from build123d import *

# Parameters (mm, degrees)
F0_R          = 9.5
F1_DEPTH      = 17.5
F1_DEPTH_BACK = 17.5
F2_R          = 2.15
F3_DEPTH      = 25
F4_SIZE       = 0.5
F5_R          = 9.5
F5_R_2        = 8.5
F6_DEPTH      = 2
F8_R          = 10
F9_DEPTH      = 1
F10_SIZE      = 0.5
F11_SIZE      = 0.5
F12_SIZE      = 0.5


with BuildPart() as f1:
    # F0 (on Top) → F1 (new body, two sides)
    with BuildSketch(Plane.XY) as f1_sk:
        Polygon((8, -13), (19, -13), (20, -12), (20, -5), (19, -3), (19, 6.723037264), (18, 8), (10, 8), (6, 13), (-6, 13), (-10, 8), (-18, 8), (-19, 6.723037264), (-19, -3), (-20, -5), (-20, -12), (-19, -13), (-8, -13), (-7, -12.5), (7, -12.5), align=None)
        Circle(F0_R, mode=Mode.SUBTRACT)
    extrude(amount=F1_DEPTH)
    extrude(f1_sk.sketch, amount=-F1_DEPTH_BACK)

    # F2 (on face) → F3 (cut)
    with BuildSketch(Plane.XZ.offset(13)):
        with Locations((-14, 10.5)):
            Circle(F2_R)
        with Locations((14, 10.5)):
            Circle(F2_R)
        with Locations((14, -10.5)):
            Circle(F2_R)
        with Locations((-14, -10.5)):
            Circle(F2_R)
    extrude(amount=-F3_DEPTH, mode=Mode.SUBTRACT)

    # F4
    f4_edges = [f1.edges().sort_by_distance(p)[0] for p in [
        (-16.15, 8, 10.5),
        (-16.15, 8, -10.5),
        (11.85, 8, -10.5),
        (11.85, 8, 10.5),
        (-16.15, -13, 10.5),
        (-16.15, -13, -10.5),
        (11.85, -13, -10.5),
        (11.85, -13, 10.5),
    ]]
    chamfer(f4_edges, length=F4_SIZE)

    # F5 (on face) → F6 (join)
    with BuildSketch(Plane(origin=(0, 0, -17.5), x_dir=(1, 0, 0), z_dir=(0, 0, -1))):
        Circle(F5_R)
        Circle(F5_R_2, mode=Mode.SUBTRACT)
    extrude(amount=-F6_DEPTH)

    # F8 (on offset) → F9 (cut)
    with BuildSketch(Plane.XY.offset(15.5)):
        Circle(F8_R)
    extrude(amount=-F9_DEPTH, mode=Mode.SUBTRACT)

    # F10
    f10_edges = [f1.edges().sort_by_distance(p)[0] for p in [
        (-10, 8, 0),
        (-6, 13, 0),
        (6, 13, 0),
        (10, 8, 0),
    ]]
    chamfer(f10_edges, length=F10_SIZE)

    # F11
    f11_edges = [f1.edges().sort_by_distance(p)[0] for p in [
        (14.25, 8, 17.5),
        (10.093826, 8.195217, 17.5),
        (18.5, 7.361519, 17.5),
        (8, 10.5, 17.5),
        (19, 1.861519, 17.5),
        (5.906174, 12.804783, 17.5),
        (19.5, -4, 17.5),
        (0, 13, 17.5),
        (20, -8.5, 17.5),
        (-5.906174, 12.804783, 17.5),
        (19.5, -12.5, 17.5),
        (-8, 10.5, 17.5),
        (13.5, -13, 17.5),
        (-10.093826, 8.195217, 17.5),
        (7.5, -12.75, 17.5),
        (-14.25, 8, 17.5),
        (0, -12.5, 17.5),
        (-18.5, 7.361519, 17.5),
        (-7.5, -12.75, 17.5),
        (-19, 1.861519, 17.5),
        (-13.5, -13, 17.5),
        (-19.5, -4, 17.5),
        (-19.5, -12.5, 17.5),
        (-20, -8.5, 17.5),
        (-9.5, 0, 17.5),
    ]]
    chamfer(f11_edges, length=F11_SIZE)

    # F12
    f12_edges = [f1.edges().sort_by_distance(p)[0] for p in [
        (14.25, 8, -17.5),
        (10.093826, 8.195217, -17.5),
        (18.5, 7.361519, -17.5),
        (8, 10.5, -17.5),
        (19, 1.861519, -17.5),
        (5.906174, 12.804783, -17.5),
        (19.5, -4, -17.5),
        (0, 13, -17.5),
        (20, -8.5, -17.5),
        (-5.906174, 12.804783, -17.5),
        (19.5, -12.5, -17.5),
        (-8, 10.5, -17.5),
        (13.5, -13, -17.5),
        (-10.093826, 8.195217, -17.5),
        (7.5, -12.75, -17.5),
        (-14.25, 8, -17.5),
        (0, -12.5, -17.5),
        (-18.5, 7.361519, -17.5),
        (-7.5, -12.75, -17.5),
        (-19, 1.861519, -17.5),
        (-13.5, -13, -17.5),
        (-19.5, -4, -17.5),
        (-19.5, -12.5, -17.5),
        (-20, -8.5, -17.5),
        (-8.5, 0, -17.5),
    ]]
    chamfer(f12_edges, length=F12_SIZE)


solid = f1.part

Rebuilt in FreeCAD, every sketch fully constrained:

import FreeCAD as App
import Part
import Sketcher
Q = App.Units.Quantity


def edges_at(feature, points):
    """Names of the edges that pass closest to the given points."""
    edges = feature.Shape.Edges
    near = lambda p: min(range(len(edges)), key=lambda i: edges[i].distToShape(Part.Vertex(*p))[0])
    return sorted({f"Edge{near(p) + 1}" for p in points})


def add_polygon(sketch, points):
    """Adds a closed chain of lines whose ends are joined by coincident constraints."""
    first, n = sketch.GeometryCount, len(points)
    for a, b in zip(points, points[1:] + points[:1]):
        sketch.addGeometry(Part.LineSegment(App.Vector(*a, 0), App.Vector(*b, 0)), False)
    for i in range(n):
        sketch.addConstraint(Sketcher.Constraint("Coincident", first + i, 2, first + (i + 1) % n, 1))

doc = App.newDocument("Part")
params = doc.addObject("Spreadsheet::Sheet", "Params")
for row, (alias, value) in enumerate([
    ("sketch1_diameter", "19 mm"),
    ("sketch1_width", "11 mm"),
    ("sketch1_width2", "8 mm"),
    ("sketch1_width3", "12 mm"),
    ("sketch1_width4", "14 mm"),
    ("pad1_length", "17.5 mm"),
    ("pad1_length2", "17.5 mm"),
    ("sketch2_diameter", "4.3 mm"),
    ("pocket1_length", "25 mm"),
    ("chamfer_size", "0.5 mm"),
    ("sketch3_diameter", "19 mm"),
    ("sketch3_diameter2", "17 mm"),
    ("pad2_length", "2 mm"),
    ("sketch4_diameter", "20 mm"),
    ("pocket2_length", "1 mm"),
    ("chamfer2_size", "0.5 mm"),
    ("chamfer3_size", "0.5 mm"),
    ("chamfer4_size", "0.5 mm"),
], start=1):
    params.set(f"A{row}", alias)
    params.set(f"B{row}", "=" + value)
    params.setAlias(f"B{row}", alias)

body = doc.addObject("PartDesign::Body", "Body")

# Sketch on XY plane
sketch1 = body.newObject("Sketcher::SketchObject", "Sketch")
sketch1.AttachmentSupport = (doc.getObject("XY_Plane"), [""])
sketch1.MapMode = "FlatFace"
add_polygon(sketch1, [(8, -13), (19, -13), (20, -12), (20, -5), (19, -3), (19, 6.7), (18, 8), (10, 8), (6, 13), (-6, 13), (-10, 8), (-18, 8), (-19, 6.7), (-19, -3), (-20, -5), (-20, -12), (-19, -13), (-8, -13), (-7, -12.5), (7, -12.5)])  # lines 0-19
sketch1.addGeometry(Part.Circle(App.Vector(0, 0, 0), App.Vector(0, 0, 1), 9.5), False)  # 20
sketch1.addConstraint([
    Sketcher.Constraint("Horizontal", 0),
    Sketcher.Constraint("Vertical", 2),
    Sketcher.Constraint("Vertical", 4),
    Sketcher.Constraint("Horizontal", 6),
    Sketcher.Constraint("Horizontal", 8),
    Sketcher.Constraint("Horizontal", 10),
    Sketcher.Constraint("Vertical", 12),
    Sketcher.Constraint("Vertical", 14),
    Sketcher.Constraint("Horizontal", 16),
    Sketcher.Constraint("Horizontal", 18),
    Sketcher.Constraint("Coincident", 20, 3, -1, 1),
    Sketcher.Constraint("Symmetric", 6, 2, 9, 2, -2),
    Sketcher.Constraint("Symmetric", 4, 2, 11, 2, -2),
    Sketcher.Constraint("Symmetric", 2, 2, 13, 2, -2),
    Sketcher.Constraint("Symmetric", 0, 2, 15, 2, -2),
    Sketcher.Constraint("Perpendicular", 1, 15),
    Sketcher.Constraint("Perpendicular", 3, 17),
    Sketcher.Constraint("Perpendicular", 13, 19),
    Sketcher.Constraint("Horizontal", 3, 2, 12, 2),
    Sketcher.Constraint("Horizontal", 1, 2, 14, 2),
    Sketcher.Constraint("Vertical", 0, 2, 3, 2),
    Sketcher.Constraint("Equal", 6, 10),
    Sketcher.Constraint("Equal", 0, 16),
    Sketcher.Constraint("Equal", 7, 9),
    Sketcher.Constraint("Diameter", 20, Q("19 mm")),
    Sketcher.Constraint("DistanceX", 0, 1, 0, 2, Q("11 mm")),
    Sketcher.Constraint("DistanceX", 6, 2, 6, 1, Q("8 mm")),
    Sketcher.Constraint("DistanceX", 8, 2, 8, 1, Q("12 mm")),
    Sketcher.Constraint("DistanceX", 18, 1, 18, 2, Q("14 mm")),
    Sketcher.Constraint("DistanceY", 2, 1, 2, 2, Q("7 mm")),
    Sketcher.Constraint("DistanceX", -1, 1, 0, 2, Q("19 mm")),
    Sketcher.Constraint("DistanceY", 0, 2, -1, 1, Q("13 mm")),
    Sketcher.Constraint("DistanceX", -1, 1, 1, 2, Q("20 mm")),
    Sketcher.Constraint("DistanceY", 3, 2, -1, 1, Q("3 mm")),
    Sketcher.Constraint("DistanceX", -1, 1, 5, 2, Q("18 mm")),
    Sketcher.Constraint("DistanceY", -1, 1, 5, 2, Q("8 mm")),
    Sketcher.Constraint("DistanceY", -1, 1, 7, 2, Q("13 mm")),
    Sketcher.Constraint("DistanceY", 4, 1, 4, 2, Q("9.723037 mm")),
])
sketch1.setExpression("Constraints[44]", "Params.sketch1_diameter")
sketch1.setExpression("Constraints[45]", "Params.sketch1_width")
sketch1.setExpression("Constraints[46]", "Params.sketch1_width2")
sketch1.setExpression("Constraints[47]", "Params.sketch1_width3")
sketch1.setExpression("Constraints[48]", "Params.sketch1_width4")
pad1 = body.newObject("PartDesign::Pad", "Pad")
pad1.Profile = sketch1
pad1.Type = "TwoLengths"
pad1.setExpression("Length", "Params.pad1_length")
pad1.setExpression("Length2", "Params.pad1_length2")

# Sketch on XZ plane
sketch2 = body.newObject("Sketcher::SketchObject", "Sketch001")
sketch2.AttachmentSupport = (doc.getObject("XZ_Plane"), [""])
sketch2.MapMode = "FlatFace"
sketch2.AttachmentOffset = App.Placement(App.Vector(0, 0, 13), App.Rotation())
sketch2.addGeometry([
    Part.Circle(App.Vector(-14, 10.5, 0), App.Vector(0, 0, 1), 2.1),
    Part.Circle(App.Vector(14, 10.5, 0), App.Vector(0, 0, 1), 2.1),
    Part.Circle(App.Vector(14, -10.5, 0), App.Vector(0, 0, 1), 2.1),
    Part.Circle(App.Vector(-14, -10.5, 0), App.Vector(0, 0, 1), 2.1),
], False)
sketch2.addConstraint([
    Sketcher.Constraint("Equal", 0, 1),
    Sketcher.Constraint("Equal", 1, 2),
    Sketcher.Constraint("Equal", 2, 3),
    Sketcher.Constraint("Symmetric", 0, 3, 2, 3, -1, 1),
    Sketcher.Constraint("Symmetric", 1, 3, 3, 3, -1, 1),
    Sketcher.Constraint("Symmetric", 0, 3, 1, 3, -2),
    Sketcher.Constraint("Diameter", 0, Q("4.3 mm")),
    Sketcher.Constraint("DistanceX", 0, 3, -1, 1, Q("14 mm")),
    Sketcher.Constraint("DistanceY", 2, 3, 1, 3, Q("21 mm")),
])
sketch2.setExpression("Constraints[6]", "Params.sketch2_diameter")
pocket1 = body.newObject("PartDesign::Pocket", "Pocket")
pocket1.Profile = sketch2
pocket1.setExpression("Length", "Params.pocket1_length")
doc.recompute()

chamfer = body.newObject("PartDesign::Chamfer", "Chamfer")
chamfer.Base = (pocket1, edges_at(pocket1, [
    (-16.15, 8, 10.5),
    (-16.15, 8, -10.5),
    (11.85, 8, -10.5),
    (11.85, 8, 10.5),
    (-16.15, -13, 10.5),
    (-16.15, -13, -10.5),
    (11.85, -13, -10.5),
    (11.85, -13, 10.5),
]))
chamfer.setExpression("Size", "Params.chamfer_size")

# Sketch on XY plane
sketch3 = body.newObject("Sketcher::SketchObject", "Sketch002")
sketch3.AttachmentSupport = (doc.getObject("XY_Plane"), [""])
sketch3.MapMode = "FlatFace"
sketch3.AttachmentOffset = App.Placement(App.Vector(0, 0, -17.5), App.Rotation())
sketch3.addGeometry([
    Part.Circle(App.Vector(0, 0, 0), App.Vector(0, 0, 1), 10),
    Part.Circle(App.Vector(0, 0, 0), App.Vector(0, 0, 1), 8),
], False)
sketch3.addConstraint([
    Sketcher.Constraint("Coincident", 0, 3, -1, 1),
    Sketcher.Constraint("Coincident", 1, 3, -1, 1),
    Sketcher.Constraint("Diameter", 0, Q("19 mm")),
    Sketcher.Constraint("Diameter", 1, Q("17 mm")),
])
sketch3.setExpression("Constraints[2]", "Params.sketch3_diameter")
sketch3.setExpression("Constraints[3]", "Params.sketch3_diameter2")
pad2 = body.newObject("PartDesign::Pad", "Pad001")
pad2.Profile = sketch3
pad2.setExpression("Length", "Params.pad2_length")

# Sketch on XY plane
sketch4 = body.newObject("Sketcher::SketchObject", "Sketch003")
sketch4.AttachmentSupport = (doc.getObject("XY_Plane"), [""])
sketch4.MapMode = "FlatFace"
sketch4.AttachmentOffset = App.Placement(App.Vector(0, 0, 15.5), App.Rotation())
sketch4.addGeometry(Part.Circle(App.Vector(0, 0, 0), App.Vector(0, 0, 1), 10), False)
sketch4.addConstraint([
    Sketcher.Constraint("Coincident", 0, 3, -1, 1),
    Sketcher.Constraint("Diameter", 0, Q("20 mm")),
])
sketch4.setExpression("Constraints[1]", "Params.sketch4_diameter")
pocket2 = body.newObject("PartDesign::Pocket", "Pocket001")
pocket2.Profile = sketch4
pocket2.setExpression("Length", "Params.pocket2_length")
doc.recompute()

chamfer2 = body.newObject("PartDesign::Chamfer", "Chamfer001")
chamfer2.Base = (pocket2, edges_at(pocket2, [
    (-10, 8, 0),
    (-6, 13, 0),
    (6, 13, 0),
    (10, 8, 0),
]))
chamfer2.setExpression("Size", "Params.chamfer2_size")
doc.recompute()

chamfer3 = body.newObject("PartDesign::Chamfer", "Chamfer002")
chamfer3.Base = (chamfer2, edges_at(chamfer2, [
    (14.25, 8, 17.5),
    (10.094, 8.195, 17.5),
    (18.5, 7.362, 17.5),
    (8, 10.5, 17.5),
    (19, 1.862, 17.5),
    (5.906, 12.805, 17.5),
    (19.5, -4, 17.5),
    (0, 13, 17.5),
    (20, -8.5, 17.5),
    (-5.906, 12.805, 17.5),
    (19.5, -12.5, 17.5),
    (-8, 10.5, 17.5),
    (13.5, -13, 17.5),
    (-10.094, 8.195, 17.5),
    (7.5, -12.75, 17.5),
    (-14.25, 8, 17.5),
    (0, -12.5, 17.5),
    (-18.5, 7.362, 17.5),
    (-7.5, -12.75, 17.5),
    (-19, 1.862, 17.5),
    (-13.5, -13, 17.5),
    (-19.5, -4, 17.5),
    (-19.5, -12.5, 17.5),
    (-20, -8.5, 17.5),
    (-9.5, 0, 17.5),
]))
chamfer3.setExpression("Size", "Params.chamfer3_size")
doc.recompute()

chamfer4 = body.newObject("PartDesign::Chamfer", "Chamfer003")
chamfer4.Base = (chamfer3, edges_at(chamfer3, [
    (14.25, 8, -17.5),
    (10.094, 8.195, -17.5),
    (18.5, 7.362, -17.5),
    (8, 10.5, -17.5),
    (19, 1.862, -17.5),
    (5.906, 12.805, -17.5),
    (19.5, -4, -17.5),
    (0, 13, -17.5),
    (20, -8.5, -17.5),
    (-5.906, 12.805, -17.5),
    (19.5, -12.5, -17.5),
    (-8, 10.5, -17.5),
    (13.5, -13, -17.5),
    (-10.094, 8.195, -17.5),
    (7.5, -12.75, -17.5),
    (-14.25, 8, -17.5),
    (0, -12.5, -17.5),
    (-18.5, 7.362, -17.5),
    (-7.5, -12.75, -17.5),
    (-19, 1.862, -17.5),
    (-13.5, -13, -17.5),
    (-19.5, -4, -17.5),
    (-19.5, -12.5, -17.5),
    (-20, -8.5, -17.5),
    (-8.5, 0, -17.5),
]))
chamfer4.setExpression("Size", "Params.chamfer4_size")

doc.recompute()
